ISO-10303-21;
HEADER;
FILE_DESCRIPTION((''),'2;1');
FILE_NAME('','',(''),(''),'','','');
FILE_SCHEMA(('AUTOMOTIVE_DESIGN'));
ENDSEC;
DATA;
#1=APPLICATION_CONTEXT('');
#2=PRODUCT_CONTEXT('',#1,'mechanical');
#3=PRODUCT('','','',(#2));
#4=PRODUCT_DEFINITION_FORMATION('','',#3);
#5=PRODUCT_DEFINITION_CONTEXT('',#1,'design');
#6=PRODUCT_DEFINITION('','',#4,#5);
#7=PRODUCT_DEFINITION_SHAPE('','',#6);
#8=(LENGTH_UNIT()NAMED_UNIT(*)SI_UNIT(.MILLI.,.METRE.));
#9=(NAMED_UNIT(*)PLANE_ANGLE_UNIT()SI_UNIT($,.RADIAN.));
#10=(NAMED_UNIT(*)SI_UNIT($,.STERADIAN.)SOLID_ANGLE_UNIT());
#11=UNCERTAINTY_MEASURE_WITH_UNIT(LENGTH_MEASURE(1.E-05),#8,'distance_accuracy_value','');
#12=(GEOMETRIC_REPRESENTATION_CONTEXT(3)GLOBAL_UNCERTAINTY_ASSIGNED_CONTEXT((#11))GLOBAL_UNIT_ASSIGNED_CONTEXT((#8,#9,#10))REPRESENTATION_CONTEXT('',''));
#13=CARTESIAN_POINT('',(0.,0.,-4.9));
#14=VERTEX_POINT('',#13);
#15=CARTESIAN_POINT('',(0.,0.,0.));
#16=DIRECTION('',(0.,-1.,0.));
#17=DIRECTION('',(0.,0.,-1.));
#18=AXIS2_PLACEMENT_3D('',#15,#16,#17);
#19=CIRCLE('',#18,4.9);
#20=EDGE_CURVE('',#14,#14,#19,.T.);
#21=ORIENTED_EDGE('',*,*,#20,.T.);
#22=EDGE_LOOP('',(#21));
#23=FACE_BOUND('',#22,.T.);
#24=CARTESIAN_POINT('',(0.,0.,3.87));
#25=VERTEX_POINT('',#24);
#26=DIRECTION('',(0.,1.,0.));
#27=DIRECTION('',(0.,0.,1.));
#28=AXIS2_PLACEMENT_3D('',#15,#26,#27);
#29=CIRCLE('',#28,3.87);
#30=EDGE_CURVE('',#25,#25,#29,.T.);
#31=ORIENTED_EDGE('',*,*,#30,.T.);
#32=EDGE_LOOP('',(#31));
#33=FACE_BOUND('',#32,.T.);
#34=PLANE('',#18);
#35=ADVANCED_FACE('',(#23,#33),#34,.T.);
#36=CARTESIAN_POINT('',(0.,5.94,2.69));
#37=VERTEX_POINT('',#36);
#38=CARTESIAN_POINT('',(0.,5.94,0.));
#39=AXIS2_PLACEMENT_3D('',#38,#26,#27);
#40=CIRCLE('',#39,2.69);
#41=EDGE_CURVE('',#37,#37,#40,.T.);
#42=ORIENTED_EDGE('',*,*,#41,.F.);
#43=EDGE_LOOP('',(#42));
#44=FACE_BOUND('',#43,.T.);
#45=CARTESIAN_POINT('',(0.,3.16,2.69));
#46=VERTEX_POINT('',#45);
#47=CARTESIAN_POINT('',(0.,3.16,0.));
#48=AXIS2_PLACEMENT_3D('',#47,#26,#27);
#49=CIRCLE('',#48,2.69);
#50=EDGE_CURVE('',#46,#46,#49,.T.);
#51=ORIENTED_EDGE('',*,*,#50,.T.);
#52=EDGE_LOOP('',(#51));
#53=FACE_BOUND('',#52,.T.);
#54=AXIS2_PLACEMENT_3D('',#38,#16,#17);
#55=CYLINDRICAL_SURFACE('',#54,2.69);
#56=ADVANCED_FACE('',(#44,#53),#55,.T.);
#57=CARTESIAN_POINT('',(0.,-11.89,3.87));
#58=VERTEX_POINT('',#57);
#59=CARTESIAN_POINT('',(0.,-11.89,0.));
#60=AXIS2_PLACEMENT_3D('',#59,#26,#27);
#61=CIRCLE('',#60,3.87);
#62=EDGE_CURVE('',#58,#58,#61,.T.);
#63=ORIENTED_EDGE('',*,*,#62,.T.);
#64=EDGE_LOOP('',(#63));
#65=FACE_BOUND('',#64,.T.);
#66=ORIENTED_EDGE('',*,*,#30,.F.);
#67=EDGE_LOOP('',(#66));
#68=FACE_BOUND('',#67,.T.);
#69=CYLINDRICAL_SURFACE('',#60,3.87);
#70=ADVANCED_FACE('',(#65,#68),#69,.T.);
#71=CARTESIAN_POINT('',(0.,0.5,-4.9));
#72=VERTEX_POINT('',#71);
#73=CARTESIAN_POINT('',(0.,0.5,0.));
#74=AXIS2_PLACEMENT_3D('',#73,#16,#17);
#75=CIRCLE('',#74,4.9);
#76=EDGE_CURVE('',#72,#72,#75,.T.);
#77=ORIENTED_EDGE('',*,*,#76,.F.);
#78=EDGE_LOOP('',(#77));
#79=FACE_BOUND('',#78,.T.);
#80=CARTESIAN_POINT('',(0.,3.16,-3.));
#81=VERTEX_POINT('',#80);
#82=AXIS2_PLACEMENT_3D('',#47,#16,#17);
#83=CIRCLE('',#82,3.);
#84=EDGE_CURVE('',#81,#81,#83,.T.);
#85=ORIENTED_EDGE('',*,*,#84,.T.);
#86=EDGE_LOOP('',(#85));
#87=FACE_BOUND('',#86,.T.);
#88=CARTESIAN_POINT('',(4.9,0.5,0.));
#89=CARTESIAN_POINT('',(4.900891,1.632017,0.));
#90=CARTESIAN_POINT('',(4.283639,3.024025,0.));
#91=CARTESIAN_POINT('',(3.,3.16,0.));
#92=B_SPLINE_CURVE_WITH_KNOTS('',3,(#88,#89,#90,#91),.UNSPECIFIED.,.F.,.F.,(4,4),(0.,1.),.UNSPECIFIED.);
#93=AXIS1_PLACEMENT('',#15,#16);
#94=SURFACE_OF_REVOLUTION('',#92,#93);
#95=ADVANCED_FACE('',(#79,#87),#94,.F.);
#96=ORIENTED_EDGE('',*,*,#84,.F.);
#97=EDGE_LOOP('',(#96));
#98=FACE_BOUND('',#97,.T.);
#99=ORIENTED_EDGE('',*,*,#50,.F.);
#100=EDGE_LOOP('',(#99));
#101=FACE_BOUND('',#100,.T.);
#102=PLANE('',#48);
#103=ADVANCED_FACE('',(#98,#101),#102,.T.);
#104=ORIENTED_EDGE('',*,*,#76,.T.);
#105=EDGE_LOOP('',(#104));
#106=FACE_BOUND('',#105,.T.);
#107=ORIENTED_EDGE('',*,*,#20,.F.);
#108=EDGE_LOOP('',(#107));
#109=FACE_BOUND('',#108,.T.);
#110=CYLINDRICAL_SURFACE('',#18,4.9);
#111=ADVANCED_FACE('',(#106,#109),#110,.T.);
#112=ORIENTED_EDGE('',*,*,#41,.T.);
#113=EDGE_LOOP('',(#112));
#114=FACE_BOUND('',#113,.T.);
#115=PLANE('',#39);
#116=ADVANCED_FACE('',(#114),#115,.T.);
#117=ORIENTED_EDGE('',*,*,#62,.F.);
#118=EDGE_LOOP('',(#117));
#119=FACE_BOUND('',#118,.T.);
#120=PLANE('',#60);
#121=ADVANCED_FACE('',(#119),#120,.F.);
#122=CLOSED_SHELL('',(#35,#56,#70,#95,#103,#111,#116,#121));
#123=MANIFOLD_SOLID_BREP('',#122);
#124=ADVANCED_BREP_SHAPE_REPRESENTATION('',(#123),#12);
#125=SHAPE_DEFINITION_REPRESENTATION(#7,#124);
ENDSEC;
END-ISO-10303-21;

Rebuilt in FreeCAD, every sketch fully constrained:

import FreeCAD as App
import Part
import Sketcher
from FreeCAD import Vector

doc = App.newDocument("Part")
body = doc.addObject("PartDesign::Body", "Body")

sketch1 = body.newObject("Sketcher::SketchObject", "Sketch")
sketch1.AttachmentSupport = (doc.getObject("XZ_Plane"), [""])
sketch1.MapMode = "FlatFace"
sketch1.addGeometry(Part.Circle(Vector(0, 0, 0), Vector(0, 0, 1), 3.87), False)
sketch1.addConstraint([
    Sketcher.Constraint("Coincident", 0, 3, -1, 1),
    Sketcher.Constraint("Diameter", 0, 7.74),
])
pad1 = body.newObject("PartDesign::Pad", "Pad")
pad1.Profile = sketch1
pad1.Length = 11.89

sketch2 = body.newObject("Sketcher::SketchObject", "Sketch001")
sketch2.AttachmentSupport = (doc.getObject("XY_Plane"), [""])
sketch2.MapMode = "FlatFace"
sketch2.addGeometry([
    Part.LineSegment(Vector(0, 3.16, 0), Vector(0, 0, 0)),
    Part.LineSegment(Vector(0, 0, 0), Vector(4.9, 0, 0)),
    Part.LineSegment(Vector(4.9, 0, 0), Vector(4.9, 0.5, 0)),
    Part.BSplineCurve([Vector(3, 3.16, 0), Vector(4.283639, 3.024025, 0), Vector(4.900891, 1.632017, 0), Vector(4.9, 0.5, 0)], [4, 4], [0, 1], False, 3, [1, 1, 1, 1], False),
    Part.LineSegment(Vector(3, 3.16, 0), Vector(0, 3.16, 0)),
], False)
sketch2.addConstraint([
    Sketcher.Constraint("Block", 3),
    Sketcher.Constraint("Coincident", 0, 2, 1, 1),
    Sketcher.Constraint("Coincident", 1, 2, 2, 1),
    Sketcher.Constraint("Coincident", 2, 2, 3, 2),
    Sketcher.Constraint("Coincident", 3, 1, 4, 1),
    Sketcher.Constraint("Coincident", 4, 2, 0, 1),
    Sketcher.Constraint("Vertical", 0),
    Sketcher.Constraint("Horizontal", 1),
    Sketcher.Constraint("Vertical", 2),
    Sketcher.Constraint("Horizontal", 4),
    Sketcher.Constraint("Coincident", 0, 2, -1, 1),
])
revolution = body.newObject("PartDesign::Revolution", "Revolution")
revolution.Profile = sketch2
revolution.ReferenceAxis = (sketch2, ["V_Axis"])
revolution.Angle = 360

sketch3 = body.newObject("Sketcher::SketchObject", "Sketch002")
sketch3.AttachmentSupport = (doc.getObject("XZ_Plane"), [""])
sketch3.MapMode = "FlatFace"
sketch3.AttachmentOffset = App.Placement(Vector(0, 0, -3.16), App.Rotation())
sketch3.addGeometry(Part.Circle(Vector(0, 0, 0), Vector(0, 0, 1), 2.69), False)
sketch3.addConstraint([
    Sketcher.Constraint("Coincident", 0, 3, -1, 1),
    Sketcher.Constraint("Diameter", 0, 5.38),
])
pad2 = body.newObject("PartDesign::Pad", "Pad001")
pad2.Profile = sketch3
pad2.Length = 2.78
pad2.Reversed = True

doc.recompute()
